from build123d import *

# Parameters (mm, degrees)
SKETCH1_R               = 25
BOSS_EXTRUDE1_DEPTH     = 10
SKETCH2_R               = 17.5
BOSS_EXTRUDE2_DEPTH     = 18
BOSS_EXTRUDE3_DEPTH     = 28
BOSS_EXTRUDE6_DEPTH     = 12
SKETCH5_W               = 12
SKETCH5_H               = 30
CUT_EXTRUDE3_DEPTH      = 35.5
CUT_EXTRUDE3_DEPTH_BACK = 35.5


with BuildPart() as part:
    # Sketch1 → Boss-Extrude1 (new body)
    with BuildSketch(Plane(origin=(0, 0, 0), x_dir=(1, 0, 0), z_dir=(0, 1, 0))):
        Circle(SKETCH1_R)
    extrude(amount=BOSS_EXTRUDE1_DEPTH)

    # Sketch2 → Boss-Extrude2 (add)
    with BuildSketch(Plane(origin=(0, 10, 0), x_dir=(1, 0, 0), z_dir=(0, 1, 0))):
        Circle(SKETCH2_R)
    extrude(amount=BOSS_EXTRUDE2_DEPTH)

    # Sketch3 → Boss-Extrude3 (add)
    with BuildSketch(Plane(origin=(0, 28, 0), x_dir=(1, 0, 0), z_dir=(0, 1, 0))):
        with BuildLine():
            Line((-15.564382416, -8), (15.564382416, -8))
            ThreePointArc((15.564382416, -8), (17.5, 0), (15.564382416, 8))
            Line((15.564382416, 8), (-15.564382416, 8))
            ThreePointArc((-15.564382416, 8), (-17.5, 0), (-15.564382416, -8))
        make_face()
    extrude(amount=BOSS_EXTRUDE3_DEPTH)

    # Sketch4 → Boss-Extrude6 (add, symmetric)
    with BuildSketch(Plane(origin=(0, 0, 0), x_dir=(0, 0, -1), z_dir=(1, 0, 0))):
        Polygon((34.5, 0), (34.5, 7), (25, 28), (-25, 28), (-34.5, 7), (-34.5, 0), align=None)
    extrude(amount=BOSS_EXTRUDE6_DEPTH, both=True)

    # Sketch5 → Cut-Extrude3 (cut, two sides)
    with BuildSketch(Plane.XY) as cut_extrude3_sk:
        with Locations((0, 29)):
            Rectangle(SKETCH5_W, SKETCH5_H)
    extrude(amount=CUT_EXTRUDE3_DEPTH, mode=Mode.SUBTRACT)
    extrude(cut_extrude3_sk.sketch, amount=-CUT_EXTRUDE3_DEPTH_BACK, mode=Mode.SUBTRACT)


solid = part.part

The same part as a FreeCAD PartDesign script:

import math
import FreeCAD as App
import Part
import Sketcher
Q = App.Units.Quantity


def add_polygon(sketch, points):
    """Adds a closed chain of lines whose ends are joined by coincident constraints."""
    first, n = sketch.GeometryCount, len(points)
    for a, b in zip(points, points[1:] + points[:1]):
        sketch.addGeometry(Part.LineSegment(App.Vector(*a, 0), App.Vector(*b, 0)), False)
    for i in range(n):
        sketch.addConstraint(Sketcher.Constraint("Coincident", first + i, 2, first + (i + 1) % n, 1))

doc = App.newDocument("Part")
body = doc.addObject("PartDesign::Body", "Body")

sketch1 = doc.addObject("Sketcher::SketchObject", "Sketch")
body.addObject(sketch1)
sketch1.AttachmentSupport = (doc.XZ_Plane, [""])
sketch1.MapMode = "FlatFace"
sketch1.addGeometry(Part.Circle(App.Vector(0, 0, 0), App.Vector(0, 0, 1), 25), False)
sketch1.addConstraint([
    Sketcher.Constraint("Coincident", 0, 3, -1, 1),
    Sketcher.Constraint("Diameter", 0, Q("50 mm")),
])
pad1 = doc.addObject("PartDesign::Pad", "Pad")
body.addObject(pad1)
pad1.Profile = sketch1
pad1.Length = 10
pad1.Reversed = True

sketch2 = doc.addObject("Sketcher::SketchObject", "Sketch001")
body.addObject(sketch2)
sketch2.AttachmentSupport = (doc.XZ_Plane, [""])
sketch2.MapMode = "FlatFace"
sketch2.AttachmentOffset = App.Placement(App.Vector(0, 0, -10), App.Rotation())
sketch2.addGeometry(Part.Circle(App.Vector(0, 0, 0), App.Vector(0, 0, 1), 18), False)
sketch2.addConstraint([
    Sketcher.Constraint("Coincident", 0, 3, -1, 1),
    Sketcher.Constraint("Diameter", 0, Q("35 mm")),
])
pad2 = doc.addObject("PartDesign::Pad", "Pad001")
body.addObject(pad2)
pad2.Profile = sketch2
pad2.Length = 18
pad2.Reversed = True

sketch3 = doc.addObject("Sketcher::SketchObject", "Sketch002")
body.addObject(sketch3)
sketch3.AttachmentSupport = (doc.XZ_Plane, [""])
sketch3.MapMode = "FlatFace"
sketch3.AttachmentOffset = App.Placement(App.Vector(0, 0, -28), App.Rotation())
sketch3.addGeometry([
    Part.LineSegment(App.Vector(-16, 8, 0), App.Vector(16, 8, 0)),
    Part.ArcOfCircle(Part.Circle(App.Vector(0, 0, 0), App.Vector(0, 0, 1), 17), math.radians(-27), math.radians(27)),
    Part.LineSegment(App.Vector(16, -8, 0), App.Vector(-16, -8, 0)),
    Part.ArcOfCircle(Part.Circle(App.Vector(0, 0, 0), App.Vector(0, 0, 1), 17), math.radians(153), math.radians(207)),
], False)
sketch3.addConstraint([
    Sketcher.Constraint("Coincident", 0, 2, 1, 2),
    Sketcher.Constraint("Coincident", 1, 1, 2, 1),
    Sketcher.Constraint("Coincident", 2, 2, 3, 2),
    Sketcher.Constraint("Coincident", 3, 1, 0, 1),
    Sketcher.Constraint("Horizontal", 0),
    Sketcher.Constraint("Horizontal", 2),
    Sketcher.Constraint("Coincident", 1, 3, -1, 1),
    Sketcher.Constraint("Coincident", 3, 3, -1, 1),
    Sketcher.Constraint("Equal", 1, 3),
    Sketcher.Constraint("Vertical", 0, 2, 1, 1),
    Sketcher.Constraint("Radius", 1, Q("17.5 mm")),
    Sketcher.Constraint("DistanceY", -1, 1, 0, 2, Q("8 mm")),
])
pad3 = doc.addObject("PartDesign::Pad", "Pad002")
body.addObject(pad3)
pad3.Profile = sketch3
pad3.Length = 28
pad3.Reversed = True

sketch4 = doc.addObject("Sketcher::SketchObject", "Sketch003")
body.addObject(sketch4)
sketch4.AttachmentSupport = (doc.YZ_Plane, [""])
sketch4.MapMode = "FlatFace"
add_polygon(sketch4, [(0, -34), (7, -34), (28, -25), (28, 25), (7, 34), (0, 34)])
sketch4.addConstraint([
    Sketcher.Constraint("Horizontal", 0),
    Sketcher.Constraint("Vertical", 2),
    Sketcher.Constraint("Horizontal", 4),
    Sketcher.Constraint("Vertical", 5),
    Sketcher.Constraint("Symmetric", 4, 2, 5, 2, -1, 1),
    Sketcher.Constraint("Vertical", 0, 2, 3, 2),
    Sketcher.Constraint("Equal", 1, 3),
    Sketcher.Constraint("DistanceX", 0, 1, 0, 2, Q("7 mm")),
    Sketcher.Constraint("DistanceY", 2, 1, 2, 2, Q("50 mm")),
    Sketcher.Constraint("DistanceY", 5, 2, 5, 1, Q("69 mm")),
    Sketcher.Constraint("DistanceX", -1, 1, 1, 2, Q("28 mm")),
])
pad4 = doc.addObject("PartDesign::Pad", "Pad003")
body.addObject(pad4)
pad4.Profile = sketch4
pad4.Length = 24
pad4.Midplane = True

sketch5 = doc.addObject("Sketcher::SketchObject", "Sketch004")
body.addObject(sketch5)
sketch5.AttachmentSupport = (doc.XY_Plane, [""])
sketch5.MapMode = "FlatFace"
add_polygon(sketch5, [(-6, 44), (-6, 14), (6, 14), (6, 44)])
sketch5.addConstraint([
    Sketcher.Constraint("Vertical", 0),
    Sketcher.Constraint("Horizontal", 1),
    Sketcher.Constraint("Vertical", 2),
    Sketcher.Constraint("Horizontal", 3),
    Sketcher.Constraint("DistanceX", 1, 1, 1, 2, Q("12 mm")),
    Sketcher.Constraint("DistanceY", 0, 2, 0, 1, Q("30 mm")),
    Sketcher.Constraint("DistanceX", 0, 2, -1, 1, Q("6 mm")),
    Sketcher.Constraint("DistanceY", -1, 1, 0, 2, Q("14 mm")),
])
pocket1 = doc.addObject("PartDesign::Pocket", "Pocket")
body.addObject(pocket1)
pocket1.Profile = sketch5
pocket1.Type = "ThroughAll"
pocket1.Midplane = True

doc.recompute()
